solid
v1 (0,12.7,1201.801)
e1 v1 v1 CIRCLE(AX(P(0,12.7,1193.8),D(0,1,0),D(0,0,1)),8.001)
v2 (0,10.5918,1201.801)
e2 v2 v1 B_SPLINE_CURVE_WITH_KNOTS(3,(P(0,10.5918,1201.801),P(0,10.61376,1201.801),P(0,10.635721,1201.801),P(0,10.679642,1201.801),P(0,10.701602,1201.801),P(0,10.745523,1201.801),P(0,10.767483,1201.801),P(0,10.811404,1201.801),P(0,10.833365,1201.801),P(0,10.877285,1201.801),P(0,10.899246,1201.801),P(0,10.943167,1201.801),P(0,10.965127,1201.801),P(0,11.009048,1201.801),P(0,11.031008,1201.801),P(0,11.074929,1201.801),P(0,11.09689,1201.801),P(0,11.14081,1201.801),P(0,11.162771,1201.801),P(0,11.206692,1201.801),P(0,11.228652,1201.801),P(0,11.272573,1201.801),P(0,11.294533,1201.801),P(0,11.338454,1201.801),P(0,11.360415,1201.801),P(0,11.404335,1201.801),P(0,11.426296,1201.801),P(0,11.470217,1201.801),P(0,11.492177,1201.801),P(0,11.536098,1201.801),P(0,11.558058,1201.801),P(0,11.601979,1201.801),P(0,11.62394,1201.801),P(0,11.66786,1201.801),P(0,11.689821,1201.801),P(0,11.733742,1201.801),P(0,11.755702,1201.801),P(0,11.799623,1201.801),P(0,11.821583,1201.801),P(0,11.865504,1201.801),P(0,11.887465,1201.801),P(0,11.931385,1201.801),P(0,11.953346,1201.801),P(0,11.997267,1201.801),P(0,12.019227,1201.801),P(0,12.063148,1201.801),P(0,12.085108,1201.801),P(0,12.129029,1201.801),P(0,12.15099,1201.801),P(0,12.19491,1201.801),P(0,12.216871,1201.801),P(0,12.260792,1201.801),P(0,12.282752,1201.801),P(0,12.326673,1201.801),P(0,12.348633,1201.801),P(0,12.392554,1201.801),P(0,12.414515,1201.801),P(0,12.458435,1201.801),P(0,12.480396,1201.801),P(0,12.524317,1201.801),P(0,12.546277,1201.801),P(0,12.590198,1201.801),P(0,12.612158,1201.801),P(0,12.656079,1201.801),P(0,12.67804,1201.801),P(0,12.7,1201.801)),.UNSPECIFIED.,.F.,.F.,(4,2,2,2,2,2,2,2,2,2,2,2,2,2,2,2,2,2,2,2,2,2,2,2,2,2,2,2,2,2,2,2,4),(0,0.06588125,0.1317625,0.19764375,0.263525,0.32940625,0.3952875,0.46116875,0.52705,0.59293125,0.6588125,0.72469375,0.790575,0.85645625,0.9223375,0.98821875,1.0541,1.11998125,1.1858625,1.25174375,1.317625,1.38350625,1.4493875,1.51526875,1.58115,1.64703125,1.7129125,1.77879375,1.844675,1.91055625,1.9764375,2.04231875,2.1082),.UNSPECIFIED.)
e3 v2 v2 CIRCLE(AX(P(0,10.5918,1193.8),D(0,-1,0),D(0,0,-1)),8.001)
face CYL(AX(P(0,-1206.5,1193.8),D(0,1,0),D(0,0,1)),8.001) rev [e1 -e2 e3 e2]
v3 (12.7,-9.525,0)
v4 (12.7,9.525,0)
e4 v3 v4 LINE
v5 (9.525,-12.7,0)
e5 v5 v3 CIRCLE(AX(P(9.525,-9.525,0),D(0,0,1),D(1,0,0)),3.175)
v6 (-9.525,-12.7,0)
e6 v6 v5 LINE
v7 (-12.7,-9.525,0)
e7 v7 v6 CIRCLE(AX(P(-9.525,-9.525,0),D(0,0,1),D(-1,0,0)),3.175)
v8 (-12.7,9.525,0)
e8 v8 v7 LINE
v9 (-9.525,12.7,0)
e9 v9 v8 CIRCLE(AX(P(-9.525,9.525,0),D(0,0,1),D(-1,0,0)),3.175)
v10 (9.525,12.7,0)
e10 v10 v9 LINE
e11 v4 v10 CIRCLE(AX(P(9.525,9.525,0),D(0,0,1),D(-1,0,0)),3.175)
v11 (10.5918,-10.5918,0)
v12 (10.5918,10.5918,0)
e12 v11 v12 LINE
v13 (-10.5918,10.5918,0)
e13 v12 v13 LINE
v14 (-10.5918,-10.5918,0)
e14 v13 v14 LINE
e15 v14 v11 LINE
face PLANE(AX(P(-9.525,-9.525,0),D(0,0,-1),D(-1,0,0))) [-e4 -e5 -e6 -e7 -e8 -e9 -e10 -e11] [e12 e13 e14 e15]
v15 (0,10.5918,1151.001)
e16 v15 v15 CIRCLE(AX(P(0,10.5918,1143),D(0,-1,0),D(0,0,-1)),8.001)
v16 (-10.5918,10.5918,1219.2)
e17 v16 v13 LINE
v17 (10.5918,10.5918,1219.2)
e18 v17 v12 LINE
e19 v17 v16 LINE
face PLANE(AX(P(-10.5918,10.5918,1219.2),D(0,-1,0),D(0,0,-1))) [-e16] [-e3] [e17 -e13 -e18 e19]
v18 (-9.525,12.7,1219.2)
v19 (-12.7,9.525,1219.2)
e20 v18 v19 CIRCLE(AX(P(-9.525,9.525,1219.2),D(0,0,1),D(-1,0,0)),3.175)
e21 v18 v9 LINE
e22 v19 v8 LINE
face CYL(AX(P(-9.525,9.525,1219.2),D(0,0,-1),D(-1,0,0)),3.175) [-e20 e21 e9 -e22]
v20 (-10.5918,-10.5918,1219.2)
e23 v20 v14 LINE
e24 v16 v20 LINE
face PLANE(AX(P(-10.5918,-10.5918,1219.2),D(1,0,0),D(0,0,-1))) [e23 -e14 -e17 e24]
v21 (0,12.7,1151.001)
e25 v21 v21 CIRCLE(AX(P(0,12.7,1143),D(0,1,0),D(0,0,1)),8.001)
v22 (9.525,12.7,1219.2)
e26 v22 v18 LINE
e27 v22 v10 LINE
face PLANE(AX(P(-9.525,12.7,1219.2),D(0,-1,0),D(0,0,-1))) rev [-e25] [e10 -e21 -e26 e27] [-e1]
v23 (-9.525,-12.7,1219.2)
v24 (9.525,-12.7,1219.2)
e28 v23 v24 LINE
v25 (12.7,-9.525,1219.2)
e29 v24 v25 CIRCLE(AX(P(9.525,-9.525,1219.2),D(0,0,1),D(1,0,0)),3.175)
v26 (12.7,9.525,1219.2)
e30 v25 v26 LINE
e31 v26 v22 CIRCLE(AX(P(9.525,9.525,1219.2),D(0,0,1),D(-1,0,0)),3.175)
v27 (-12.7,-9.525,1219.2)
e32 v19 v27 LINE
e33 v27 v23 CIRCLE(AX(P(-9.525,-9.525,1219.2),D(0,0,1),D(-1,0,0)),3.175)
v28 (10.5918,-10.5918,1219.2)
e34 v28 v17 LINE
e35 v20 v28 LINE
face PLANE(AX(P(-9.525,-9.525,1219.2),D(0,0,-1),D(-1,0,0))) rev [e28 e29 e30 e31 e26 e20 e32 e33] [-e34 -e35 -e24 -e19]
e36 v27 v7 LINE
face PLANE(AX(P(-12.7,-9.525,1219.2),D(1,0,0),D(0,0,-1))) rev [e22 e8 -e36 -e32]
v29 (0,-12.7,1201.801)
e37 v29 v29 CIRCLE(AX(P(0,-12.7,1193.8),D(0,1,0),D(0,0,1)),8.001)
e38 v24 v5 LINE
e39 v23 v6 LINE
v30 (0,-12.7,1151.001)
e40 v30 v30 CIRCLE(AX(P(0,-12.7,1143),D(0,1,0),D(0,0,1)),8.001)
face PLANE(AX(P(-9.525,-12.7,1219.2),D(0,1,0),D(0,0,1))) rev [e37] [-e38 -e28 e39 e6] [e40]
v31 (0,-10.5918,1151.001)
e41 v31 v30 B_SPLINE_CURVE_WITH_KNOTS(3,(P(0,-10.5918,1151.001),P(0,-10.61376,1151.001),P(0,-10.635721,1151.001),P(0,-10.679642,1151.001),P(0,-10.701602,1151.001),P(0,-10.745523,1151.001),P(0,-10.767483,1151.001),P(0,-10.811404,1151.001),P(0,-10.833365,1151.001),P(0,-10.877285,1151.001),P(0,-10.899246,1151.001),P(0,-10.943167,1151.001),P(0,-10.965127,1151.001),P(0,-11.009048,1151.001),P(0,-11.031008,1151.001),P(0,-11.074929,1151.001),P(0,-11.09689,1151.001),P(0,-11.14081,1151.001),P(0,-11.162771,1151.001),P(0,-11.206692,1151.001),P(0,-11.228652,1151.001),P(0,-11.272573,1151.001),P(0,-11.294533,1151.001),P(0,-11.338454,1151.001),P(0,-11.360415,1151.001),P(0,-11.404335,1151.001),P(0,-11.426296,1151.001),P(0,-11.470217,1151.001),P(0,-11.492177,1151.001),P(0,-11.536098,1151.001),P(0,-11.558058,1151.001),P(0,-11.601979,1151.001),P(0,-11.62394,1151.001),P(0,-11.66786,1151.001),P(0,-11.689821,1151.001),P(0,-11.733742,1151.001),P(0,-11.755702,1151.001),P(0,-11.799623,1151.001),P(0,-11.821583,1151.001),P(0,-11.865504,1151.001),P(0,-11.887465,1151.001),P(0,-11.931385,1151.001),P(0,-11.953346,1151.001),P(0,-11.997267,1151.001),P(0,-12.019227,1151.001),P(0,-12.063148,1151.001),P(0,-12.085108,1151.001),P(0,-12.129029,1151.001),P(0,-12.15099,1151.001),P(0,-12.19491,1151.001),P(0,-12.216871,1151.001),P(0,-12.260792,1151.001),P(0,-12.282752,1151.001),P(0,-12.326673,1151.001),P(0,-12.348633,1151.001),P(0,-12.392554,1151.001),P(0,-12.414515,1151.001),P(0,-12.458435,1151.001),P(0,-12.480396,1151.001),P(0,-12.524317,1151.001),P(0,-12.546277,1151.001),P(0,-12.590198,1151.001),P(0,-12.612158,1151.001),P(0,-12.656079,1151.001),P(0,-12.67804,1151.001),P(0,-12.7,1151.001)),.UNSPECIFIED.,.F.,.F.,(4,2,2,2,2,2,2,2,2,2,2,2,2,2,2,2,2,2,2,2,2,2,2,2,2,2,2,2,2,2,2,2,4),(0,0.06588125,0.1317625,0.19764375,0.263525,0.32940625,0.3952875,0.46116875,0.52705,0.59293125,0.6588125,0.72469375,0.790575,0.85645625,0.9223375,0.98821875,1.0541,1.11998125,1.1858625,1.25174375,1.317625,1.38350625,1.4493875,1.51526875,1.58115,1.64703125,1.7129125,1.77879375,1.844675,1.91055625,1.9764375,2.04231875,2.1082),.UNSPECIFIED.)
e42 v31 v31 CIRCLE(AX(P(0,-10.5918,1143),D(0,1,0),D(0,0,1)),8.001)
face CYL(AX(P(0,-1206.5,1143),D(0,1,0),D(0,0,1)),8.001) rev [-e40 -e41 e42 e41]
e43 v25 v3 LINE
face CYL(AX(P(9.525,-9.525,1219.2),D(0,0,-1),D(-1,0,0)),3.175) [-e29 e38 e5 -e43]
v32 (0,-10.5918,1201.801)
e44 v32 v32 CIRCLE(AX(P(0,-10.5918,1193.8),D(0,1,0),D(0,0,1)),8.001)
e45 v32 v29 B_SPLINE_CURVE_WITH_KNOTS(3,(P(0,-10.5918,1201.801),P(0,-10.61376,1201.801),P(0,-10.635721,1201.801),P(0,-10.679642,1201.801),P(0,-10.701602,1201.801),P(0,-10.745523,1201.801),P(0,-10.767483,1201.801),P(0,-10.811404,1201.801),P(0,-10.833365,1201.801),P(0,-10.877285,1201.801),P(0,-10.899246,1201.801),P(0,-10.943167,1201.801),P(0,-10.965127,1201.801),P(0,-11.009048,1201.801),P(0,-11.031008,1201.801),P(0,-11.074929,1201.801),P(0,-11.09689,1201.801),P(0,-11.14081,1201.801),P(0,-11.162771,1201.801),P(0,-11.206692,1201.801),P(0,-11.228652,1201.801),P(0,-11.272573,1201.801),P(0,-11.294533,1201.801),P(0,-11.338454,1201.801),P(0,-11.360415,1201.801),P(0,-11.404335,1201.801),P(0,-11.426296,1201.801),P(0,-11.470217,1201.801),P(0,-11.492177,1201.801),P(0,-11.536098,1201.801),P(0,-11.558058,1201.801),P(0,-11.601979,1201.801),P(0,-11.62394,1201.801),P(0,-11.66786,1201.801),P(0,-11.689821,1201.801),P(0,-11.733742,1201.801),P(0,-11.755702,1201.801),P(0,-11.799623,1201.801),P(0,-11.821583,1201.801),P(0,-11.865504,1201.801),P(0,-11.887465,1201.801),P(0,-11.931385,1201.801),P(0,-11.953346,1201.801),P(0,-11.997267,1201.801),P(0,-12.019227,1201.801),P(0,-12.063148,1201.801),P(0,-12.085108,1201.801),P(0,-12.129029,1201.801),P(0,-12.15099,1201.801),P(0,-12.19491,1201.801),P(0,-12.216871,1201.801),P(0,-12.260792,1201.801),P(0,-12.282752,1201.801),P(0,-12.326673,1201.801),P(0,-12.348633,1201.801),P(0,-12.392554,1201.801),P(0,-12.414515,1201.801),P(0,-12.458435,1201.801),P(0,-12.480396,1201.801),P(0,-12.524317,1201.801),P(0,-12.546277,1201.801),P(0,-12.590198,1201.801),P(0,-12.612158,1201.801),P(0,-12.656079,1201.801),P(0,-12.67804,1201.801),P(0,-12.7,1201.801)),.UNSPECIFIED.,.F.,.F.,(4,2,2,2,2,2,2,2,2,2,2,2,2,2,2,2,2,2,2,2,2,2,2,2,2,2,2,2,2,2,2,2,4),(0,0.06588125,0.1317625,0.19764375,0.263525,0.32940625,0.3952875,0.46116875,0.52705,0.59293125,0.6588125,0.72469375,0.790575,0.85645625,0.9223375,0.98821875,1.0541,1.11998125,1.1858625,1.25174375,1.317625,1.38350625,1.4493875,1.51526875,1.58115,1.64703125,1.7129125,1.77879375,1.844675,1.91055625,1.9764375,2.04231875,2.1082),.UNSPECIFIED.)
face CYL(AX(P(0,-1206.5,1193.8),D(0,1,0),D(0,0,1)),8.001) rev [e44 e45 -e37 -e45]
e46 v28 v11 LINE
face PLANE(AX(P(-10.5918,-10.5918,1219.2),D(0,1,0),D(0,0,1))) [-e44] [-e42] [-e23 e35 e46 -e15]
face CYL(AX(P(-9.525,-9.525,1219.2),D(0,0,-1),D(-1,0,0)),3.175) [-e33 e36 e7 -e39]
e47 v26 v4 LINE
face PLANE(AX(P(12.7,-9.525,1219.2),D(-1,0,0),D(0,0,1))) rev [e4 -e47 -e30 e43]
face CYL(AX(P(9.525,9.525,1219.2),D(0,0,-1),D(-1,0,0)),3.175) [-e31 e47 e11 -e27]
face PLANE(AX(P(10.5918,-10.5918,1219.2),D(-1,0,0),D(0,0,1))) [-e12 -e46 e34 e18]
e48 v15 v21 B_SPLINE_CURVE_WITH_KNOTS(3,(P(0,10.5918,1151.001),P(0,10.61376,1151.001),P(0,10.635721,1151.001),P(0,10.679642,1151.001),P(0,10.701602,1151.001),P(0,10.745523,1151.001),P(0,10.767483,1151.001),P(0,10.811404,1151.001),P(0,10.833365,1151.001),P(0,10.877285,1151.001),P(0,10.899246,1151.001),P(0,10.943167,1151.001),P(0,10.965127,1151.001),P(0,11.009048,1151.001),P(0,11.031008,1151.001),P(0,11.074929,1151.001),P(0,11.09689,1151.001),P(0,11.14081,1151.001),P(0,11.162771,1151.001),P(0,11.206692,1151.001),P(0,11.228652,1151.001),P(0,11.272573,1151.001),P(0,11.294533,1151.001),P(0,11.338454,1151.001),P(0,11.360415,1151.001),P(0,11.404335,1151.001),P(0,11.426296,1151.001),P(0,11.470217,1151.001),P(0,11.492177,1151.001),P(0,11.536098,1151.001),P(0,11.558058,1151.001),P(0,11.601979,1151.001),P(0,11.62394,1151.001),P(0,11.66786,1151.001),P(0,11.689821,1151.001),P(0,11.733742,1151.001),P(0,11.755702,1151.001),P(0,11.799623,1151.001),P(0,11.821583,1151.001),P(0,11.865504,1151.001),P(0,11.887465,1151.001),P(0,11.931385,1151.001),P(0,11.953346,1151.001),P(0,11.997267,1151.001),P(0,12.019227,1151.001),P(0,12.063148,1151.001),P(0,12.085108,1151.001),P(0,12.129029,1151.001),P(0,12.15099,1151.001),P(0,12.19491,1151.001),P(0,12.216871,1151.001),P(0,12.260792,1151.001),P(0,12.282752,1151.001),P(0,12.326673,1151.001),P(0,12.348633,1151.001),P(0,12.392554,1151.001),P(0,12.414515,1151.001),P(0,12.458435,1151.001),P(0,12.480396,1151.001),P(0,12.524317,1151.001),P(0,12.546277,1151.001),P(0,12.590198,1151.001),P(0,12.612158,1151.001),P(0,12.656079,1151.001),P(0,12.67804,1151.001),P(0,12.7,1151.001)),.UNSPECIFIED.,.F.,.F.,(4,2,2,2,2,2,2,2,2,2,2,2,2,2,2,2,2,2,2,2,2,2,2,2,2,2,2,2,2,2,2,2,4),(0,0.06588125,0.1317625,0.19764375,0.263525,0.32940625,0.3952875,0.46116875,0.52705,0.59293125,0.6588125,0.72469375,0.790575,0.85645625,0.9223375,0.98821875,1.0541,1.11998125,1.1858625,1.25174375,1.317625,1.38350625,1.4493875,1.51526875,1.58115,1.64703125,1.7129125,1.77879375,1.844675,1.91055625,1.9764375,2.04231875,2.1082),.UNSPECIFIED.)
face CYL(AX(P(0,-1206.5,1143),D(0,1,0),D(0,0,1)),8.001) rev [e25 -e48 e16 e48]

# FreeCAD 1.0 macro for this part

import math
import FreeCAD as App
import Part
import Sketcher

V = App.Vector
Q = App.Units.Quantity


def add_polygon(sketch, points):
    """Adds a closed chain of lines whose ends are joined by coincident constraints."""
    first, n = sketch.GeometryCount, len(points)
    for a, b in zip(points, points[1:] + points[:1]):
        sketch.addGeometry(Part.LineSegment(App.Vector(*a, 0), App.Vector(*b, 0)), False)
    for i in range(n):
        sketch.addConstraint(Sketcher.Constraint("Coincident", first + i, 2, first + (i + 1) % n, 1))

doc = App.newDocument("Part")
body = doc.addObject("PartDesign::Body", "Body")

# Sketch on XY plane
sketch1 = doc.addObject("Sketcher::SketchObject", "Sketch")
body.addObject(sketch1)
sketch1.AttachmentSupport = (doc.XY_Plane, [""])
sketch1.MapMode = "FlatFace"
sketch1.addGeometry(Part.LineSegment(V(-9.5, -12.7, 0), V(9.5, -12.7, 0)), False)  # 0
sketch1.addGeometry(Part.ArcOfCircle(Part.Circle(V(9.5, -9.5, 0), V(0, 0, 1), 3.2), math.radians(-90), math.radians(0)), False)  # 1
sketch1.addGeometry(Part.LineSegment(V(12.7, -9.5, 0), V(12.7, 9.5, 0)), False)  # 2
sketch1.addGeometry(Part.ArcOfCircle(Part.Circle(V(9.5, 9.5, 0), V(0, 0, 1), 3.2), math.radians(0), math.radians(90)), False)  # 3
sketch1.addGeometry(Part.LineSegment(V(9.5, 12.7, 0), V(-9.5, 12.7, 0)), False)  # 4
sketch1.addGeometry(Part.ArcOfCircle(Part.Circle(V(-9.5, 9.5, 0), V(0, 0, 1), 3.2), math.radians(90), math.radians(180)), False)  # 5
sketch1.addGeometry(Part.LineSegment(V(-12.7, 9.5, 0), V(-12.7, -9.5, 0)), False)  # 6
sketch1.addGeometry(Part.ArcOfCircle(Part.Circle(V(-9.5, -9.5, 0), V(0, 0, 1), 3.2), math.radians(-180), math.radians(-90)), False)  # 7
add_polygon(sketch1, [(10.6, -10.6), (-10.6, -10.6), (-10.6, 10.6), (10.6, 10.6)])  # lines 8-11
sketch1.addConstraint(Sketcher.Constraint("Tangent", 0, 2, 1, 1))
sketch1.addConstraint(Sketcher.Constraint("Tangent", 1, 2, 2, 1))
sketch1.addConstraint(Sketcher.Constraint("Tangent", 2, 2, 3, 1))
sketch1.addConstraint(Sketcher.Constraint("Tangent", 3, 2, 4, 1))
sketch1.addConstraint(Sketcher.Constraint("Tangent", 4, 2, 5, 1))
sketch1.addConstraint(Sketcher.Constraint("Tangent", 5, 2, 6, 1))
sketch1.addConstraint(Sketcher.Constraint("Tangent", 6, 2, 7, 1))
sketch1.addConstraint(Sketcher.Constraint("Tangent", 7, 2, 0, 1))
sketch1.addConstraint(Sketcher.Constraint("Horizontal", 0))
sketch1.addConstraint(Sketcher.Constraint("Vertical", 2))
sketch1.addConstraint(Sketcher.Constraint("Horizontal", 4))
sketch1.addConstraint(Sketcher.Constraint("Vertical", 6))
sketch1.addConstraint(Sketcher.Constraint("Horizontal", 8))
sketch1.addConstraint(Sketcher.Constraint("Vertical", 9))
sketch1.addConstraint(Sketcher.Constraint("Horizontal", 10))
sketch1.addConstraint(Sketcher.Constraint("Vertical", 11))
sketch1.addConstraint(Sketcher.Constraint("Equal", 1, 3))
sketch1.addConstraint(Sketcher.Constraint("Equal", 3, 5))
sketch1.addConstraint(Sketcher.Constraint("Equal", 5, 7))
sketch1.addConstraint(Sketcher.Constraint("Symmetric", 1, 3, 5, 3, -1, 1))
sketch1.addConstraint(Sketcher.Constraint("Symmetric", 8, 2, 10, 2, -1, 1))
sketch1.addConstraint(Sketcher.Constraint("Equal", 4, 2))
sketch1.addConstraint(Sketcher.Constraint("Equal", 10, 9))
sketch1.addConstraint(Sketcher.Constraint("Radius", 1, Q("0.125 in")))
sketch1.addConstraint(Sketcher.Constraint("DistanceX", 0, 1, 0, 2, Q("0.75 in")))
sketch1.addConstraint(Sketcher.Constraint("DistanceX", 8, 2, 8, 1, Q("0.834 in")))
pad1 = doc.addObject("PartDesign::Pad", "Pad")
body.addObject(pad1)
pad1.Profile = sketch1
pad1.Length = Q("48 in")

# Sketch on XZ plane
sketch2 = doc.addObject("Sketcher::SketchObject", "Sketch001")
body.addObject(sketch2)
sketch2.AttachmentSupport = (doc.XZ_Plane, [""])
sketch2.MapMode = "FlatFace"
sketch2.AttachmentOffset = App.Placement(V(0, 0, -0.5 * 25.4), App.Rotation())
sketch2.addGeometry(Part.Circle(V(0, 1194, 0), V(0, 0, 1), 8), False)
sketch2.addGeometry(Part.Circle(V(0, 1143, 0), V(0, 0, 1), 8), False)
sketch2.addConstraint(Sketcher.Constraint("Equal", 0, 1))
sketch2.addConstraint(Sketcher.Constraint("PointOnObject", 0, 3, -2))
sketch2.addConstraint(Sketcher.Constraint("PointOnObject", 1, 3, -2))
sketch2.addConstraint(Sketcher.Constraint("Diameter", 0, Q("0.63 in")))
sketch2.addConstraint(Sketcher.Constraint("DistanceY", -1, 1, 0, 3, Q("47 in")))
sketch2.addConstraint(Sketcher.Constraint("DistanceY", -1, 1, 1, 3, Q("45 in")))
pocket1 = doc.addObject("PartDesign::Pocket", "Pocket")
body.addObject(pocket1)
pocket1.Profile = sketch2
pocket1.Length = Q("48 in")
pocket1.Reversed = True

doc.recompute()
